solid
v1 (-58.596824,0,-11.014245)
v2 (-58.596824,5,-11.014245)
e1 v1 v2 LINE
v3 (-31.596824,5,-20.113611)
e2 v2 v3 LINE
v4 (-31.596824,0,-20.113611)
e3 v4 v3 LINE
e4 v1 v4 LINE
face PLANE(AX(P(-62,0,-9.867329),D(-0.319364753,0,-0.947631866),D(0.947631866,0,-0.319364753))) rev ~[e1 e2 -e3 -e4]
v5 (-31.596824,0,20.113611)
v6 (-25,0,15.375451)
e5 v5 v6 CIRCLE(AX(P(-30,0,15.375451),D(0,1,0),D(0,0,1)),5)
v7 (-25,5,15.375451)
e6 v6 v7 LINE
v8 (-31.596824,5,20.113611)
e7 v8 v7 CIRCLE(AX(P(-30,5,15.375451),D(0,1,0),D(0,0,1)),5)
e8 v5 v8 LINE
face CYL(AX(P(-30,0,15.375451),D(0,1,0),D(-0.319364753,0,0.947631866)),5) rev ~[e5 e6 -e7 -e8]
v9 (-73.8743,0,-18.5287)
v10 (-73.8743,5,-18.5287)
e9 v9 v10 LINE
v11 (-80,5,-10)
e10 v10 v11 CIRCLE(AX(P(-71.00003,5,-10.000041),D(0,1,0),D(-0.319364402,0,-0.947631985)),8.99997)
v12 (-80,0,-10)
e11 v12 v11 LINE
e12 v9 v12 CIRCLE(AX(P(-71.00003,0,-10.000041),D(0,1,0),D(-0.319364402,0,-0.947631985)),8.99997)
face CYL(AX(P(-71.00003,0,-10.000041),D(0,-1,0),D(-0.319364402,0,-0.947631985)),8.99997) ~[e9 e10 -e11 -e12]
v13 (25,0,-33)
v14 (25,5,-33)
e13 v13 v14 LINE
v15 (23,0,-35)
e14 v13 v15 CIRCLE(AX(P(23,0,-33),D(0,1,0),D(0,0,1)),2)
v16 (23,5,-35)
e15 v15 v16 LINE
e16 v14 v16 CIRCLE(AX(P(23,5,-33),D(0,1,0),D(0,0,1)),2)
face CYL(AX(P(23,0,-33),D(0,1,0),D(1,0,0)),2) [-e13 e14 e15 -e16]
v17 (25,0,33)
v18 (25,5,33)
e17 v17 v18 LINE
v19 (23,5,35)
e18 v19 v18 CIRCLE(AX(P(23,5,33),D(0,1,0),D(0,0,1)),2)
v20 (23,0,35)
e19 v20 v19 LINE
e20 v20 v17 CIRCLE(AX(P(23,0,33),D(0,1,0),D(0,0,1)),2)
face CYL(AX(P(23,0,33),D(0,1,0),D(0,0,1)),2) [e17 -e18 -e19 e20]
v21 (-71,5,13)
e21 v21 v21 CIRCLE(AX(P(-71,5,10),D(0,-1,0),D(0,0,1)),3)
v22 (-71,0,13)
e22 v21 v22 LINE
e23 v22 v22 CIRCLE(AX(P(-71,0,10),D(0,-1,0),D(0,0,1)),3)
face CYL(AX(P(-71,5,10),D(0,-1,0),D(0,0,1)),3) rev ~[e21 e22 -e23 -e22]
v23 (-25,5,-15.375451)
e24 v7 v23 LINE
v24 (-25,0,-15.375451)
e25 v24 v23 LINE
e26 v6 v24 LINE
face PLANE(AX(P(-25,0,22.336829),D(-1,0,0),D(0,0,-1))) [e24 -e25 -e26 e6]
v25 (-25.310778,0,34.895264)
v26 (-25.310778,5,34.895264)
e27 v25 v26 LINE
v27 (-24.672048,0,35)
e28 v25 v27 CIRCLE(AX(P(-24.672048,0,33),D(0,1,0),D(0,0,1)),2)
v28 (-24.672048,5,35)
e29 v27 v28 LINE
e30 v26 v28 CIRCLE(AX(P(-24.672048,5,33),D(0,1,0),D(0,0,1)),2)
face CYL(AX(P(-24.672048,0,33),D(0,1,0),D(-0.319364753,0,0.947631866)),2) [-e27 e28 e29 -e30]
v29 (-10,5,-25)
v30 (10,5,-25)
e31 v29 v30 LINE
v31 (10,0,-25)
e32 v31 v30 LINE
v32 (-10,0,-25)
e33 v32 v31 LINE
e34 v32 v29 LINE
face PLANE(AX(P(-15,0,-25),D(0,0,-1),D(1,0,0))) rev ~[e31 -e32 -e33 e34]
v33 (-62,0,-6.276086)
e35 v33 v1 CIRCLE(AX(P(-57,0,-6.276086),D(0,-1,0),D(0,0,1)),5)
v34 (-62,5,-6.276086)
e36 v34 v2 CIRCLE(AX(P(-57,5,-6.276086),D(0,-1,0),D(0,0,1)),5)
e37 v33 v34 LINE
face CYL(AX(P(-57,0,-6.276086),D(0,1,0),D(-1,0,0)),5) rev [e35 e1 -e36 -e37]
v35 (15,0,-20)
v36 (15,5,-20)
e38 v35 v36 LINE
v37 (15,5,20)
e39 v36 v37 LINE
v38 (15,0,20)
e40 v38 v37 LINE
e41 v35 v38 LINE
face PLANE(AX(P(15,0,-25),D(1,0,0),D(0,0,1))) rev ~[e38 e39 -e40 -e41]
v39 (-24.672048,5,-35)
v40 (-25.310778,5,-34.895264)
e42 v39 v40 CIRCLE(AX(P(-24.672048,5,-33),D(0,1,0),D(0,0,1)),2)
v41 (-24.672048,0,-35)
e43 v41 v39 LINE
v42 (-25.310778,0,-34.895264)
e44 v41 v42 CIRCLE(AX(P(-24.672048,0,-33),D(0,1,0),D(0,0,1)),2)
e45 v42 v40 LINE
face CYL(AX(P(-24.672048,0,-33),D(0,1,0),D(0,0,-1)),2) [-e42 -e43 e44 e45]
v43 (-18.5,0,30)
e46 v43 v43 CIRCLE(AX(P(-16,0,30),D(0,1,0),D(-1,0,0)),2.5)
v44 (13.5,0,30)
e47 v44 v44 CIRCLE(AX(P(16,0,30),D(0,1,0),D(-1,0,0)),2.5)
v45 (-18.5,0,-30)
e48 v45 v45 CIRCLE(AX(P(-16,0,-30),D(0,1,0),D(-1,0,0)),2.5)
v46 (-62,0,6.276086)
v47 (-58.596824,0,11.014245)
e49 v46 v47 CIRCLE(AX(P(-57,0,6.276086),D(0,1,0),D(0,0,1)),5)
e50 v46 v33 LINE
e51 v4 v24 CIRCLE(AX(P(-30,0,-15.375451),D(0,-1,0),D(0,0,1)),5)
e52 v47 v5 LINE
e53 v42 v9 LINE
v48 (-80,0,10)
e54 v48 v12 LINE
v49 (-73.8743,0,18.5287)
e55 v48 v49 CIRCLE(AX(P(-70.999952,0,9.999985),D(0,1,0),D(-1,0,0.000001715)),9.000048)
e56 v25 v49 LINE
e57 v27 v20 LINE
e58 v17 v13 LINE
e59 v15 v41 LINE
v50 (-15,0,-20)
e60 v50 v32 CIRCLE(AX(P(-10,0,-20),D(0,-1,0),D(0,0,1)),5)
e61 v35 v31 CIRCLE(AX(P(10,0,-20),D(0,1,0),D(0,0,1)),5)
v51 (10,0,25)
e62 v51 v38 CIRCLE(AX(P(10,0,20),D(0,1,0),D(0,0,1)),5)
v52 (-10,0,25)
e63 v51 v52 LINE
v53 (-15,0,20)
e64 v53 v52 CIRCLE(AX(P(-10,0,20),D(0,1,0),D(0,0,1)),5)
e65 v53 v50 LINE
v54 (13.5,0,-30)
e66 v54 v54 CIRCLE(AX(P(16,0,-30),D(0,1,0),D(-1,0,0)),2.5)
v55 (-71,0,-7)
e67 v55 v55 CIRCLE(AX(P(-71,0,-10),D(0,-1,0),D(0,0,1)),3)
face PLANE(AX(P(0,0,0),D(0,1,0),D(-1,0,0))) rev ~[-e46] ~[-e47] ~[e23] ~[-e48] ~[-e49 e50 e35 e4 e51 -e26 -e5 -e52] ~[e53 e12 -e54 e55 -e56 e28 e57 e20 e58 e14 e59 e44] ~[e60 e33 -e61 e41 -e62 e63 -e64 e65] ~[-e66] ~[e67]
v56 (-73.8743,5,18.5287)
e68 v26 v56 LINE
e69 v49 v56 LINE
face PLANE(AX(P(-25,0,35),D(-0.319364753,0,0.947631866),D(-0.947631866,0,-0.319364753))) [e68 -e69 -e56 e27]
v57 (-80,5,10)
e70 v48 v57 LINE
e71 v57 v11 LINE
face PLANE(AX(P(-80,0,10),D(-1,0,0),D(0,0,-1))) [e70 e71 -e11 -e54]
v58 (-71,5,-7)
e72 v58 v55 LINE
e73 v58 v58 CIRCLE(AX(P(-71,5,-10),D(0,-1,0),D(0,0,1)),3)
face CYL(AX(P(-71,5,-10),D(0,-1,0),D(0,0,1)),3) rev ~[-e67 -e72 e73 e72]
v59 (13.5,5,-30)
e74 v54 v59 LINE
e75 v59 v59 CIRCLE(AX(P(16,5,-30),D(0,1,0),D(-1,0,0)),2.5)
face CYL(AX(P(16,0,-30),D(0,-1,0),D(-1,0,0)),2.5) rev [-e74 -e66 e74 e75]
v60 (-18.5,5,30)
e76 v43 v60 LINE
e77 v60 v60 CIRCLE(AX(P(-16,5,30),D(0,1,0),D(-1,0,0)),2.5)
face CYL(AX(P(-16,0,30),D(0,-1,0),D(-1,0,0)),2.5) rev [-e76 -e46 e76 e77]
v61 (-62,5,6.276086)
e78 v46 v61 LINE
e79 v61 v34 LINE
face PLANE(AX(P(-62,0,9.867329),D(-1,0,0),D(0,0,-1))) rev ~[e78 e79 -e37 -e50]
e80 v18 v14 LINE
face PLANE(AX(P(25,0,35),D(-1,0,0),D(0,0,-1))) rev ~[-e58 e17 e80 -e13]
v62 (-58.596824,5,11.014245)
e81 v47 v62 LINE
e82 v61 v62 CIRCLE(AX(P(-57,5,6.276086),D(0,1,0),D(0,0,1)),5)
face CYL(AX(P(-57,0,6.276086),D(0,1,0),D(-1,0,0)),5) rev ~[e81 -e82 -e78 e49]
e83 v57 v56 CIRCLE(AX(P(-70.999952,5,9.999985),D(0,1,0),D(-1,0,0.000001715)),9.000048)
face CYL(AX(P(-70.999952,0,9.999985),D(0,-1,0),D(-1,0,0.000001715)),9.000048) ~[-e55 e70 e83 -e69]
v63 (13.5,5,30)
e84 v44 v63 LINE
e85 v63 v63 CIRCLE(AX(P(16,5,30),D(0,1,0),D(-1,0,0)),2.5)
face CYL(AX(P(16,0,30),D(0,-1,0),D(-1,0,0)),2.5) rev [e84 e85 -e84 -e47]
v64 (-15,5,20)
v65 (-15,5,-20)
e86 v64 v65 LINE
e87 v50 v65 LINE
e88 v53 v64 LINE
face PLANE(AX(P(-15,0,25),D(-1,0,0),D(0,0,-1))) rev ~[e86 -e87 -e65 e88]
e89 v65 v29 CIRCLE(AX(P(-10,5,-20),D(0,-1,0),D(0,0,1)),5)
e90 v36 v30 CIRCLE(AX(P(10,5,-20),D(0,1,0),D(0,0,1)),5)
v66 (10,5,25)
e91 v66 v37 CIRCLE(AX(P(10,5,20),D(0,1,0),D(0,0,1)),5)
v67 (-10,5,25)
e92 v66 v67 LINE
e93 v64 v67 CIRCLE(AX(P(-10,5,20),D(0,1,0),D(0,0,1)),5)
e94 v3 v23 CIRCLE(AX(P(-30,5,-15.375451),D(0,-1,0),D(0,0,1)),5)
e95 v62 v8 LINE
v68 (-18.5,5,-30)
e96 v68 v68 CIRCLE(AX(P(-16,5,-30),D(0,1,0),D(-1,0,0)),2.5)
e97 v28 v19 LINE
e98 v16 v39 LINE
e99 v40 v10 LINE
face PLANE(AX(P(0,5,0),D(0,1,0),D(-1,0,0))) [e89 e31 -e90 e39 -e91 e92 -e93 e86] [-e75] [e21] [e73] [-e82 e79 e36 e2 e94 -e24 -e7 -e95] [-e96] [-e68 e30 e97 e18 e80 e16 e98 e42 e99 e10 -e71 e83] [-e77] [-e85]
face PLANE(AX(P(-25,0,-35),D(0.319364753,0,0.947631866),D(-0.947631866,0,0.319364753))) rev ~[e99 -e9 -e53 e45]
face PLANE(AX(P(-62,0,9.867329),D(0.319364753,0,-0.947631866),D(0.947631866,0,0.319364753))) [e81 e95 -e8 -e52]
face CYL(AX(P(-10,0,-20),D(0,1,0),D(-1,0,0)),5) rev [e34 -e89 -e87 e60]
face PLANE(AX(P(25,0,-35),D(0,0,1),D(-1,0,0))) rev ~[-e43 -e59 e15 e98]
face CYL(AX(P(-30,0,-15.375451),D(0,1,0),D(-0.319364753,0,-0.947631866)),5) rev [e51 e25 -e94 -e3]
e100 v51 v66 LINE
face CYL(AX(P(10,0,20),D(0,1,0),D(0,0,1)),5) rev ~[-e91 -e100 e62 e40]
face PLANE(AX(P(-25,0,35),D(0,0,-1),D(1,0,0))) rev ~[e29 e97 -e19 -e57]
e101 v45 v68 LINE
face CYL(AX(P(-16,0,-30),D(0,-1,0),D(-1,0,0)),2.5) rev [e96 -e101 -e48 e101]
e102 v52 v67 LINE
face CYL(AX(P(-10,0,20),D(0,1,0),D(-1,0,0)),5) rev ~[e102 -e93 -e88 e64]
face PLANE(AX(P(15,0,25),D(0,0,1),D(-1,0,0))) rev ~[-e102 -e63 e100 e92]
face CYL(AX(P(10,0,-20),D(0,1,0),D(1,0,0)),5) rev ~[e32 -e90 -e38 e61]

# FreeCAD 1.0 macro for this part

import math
import FreeCAD as App
import Part
import Sketcher


def edges_at(feature, points):
    """Names of the edges that pass closest to the given points."""
    edges = feature.Shape.Edges
    near = lambda p: min(range(len(edges)), key=lambda i: edges[i].distToShape(Part.Vertex(*p))[0])
    return sorted({f"Edge{near(p) + 1}" for p in points})

doc = App.newDocument("Part")
params = doc.addObject("Spreadsheet::Sheet", "Params")
for row, (alias, value) in enumerate([
    ("sketch1_diameter", "5 mm"),
    ("sketch1_radius", "9 mm"),
    ("sketch1_height", "70 mm"),
    ("pad1_length", "5 mm"),
    ("fillet_radius", "5 mm"),
    ("fillet2_radius", "2 mm"),
    ("sketch2_diameter", "6 mm"),
    ("hole_diameter", "6 mm"),
], start=1):
    params.set(f"A{row}", alias)
    params.set(f"B{row}", "=" + value)
    params.setAlias(f"B{row}", alias)

body = doc.addObject("PartDesign::Body", "Body")

# Sketch on XZ plane
sketch1 = body.newObject("Sketcher::SketchObject", "Sketch")
sketch1.AttachmentSupport = (doc.getObject("XZ_Plane"), [""])
sketch1.MapMode = "FlatFace"
sketch1.addGeometry(Part.ArcOfCircle(Part.Circle(App.Vector(-71, 10, 0), App.Vector(0, 0, 1), 9), math.radians(108.624589), math.radians(180)), False)
sketch1.addGeometry(Part.LineSegment(App.Vector(-73.8743, 18.5287, 0), App.Vector(-25, 35, 0)), False)
sketch1.addGeometry(Part.LineSegment(App.Vector(-25, 35, 0), App.Vector(25, 35, 0)), False)
sketch1.addGeometry(Part.LineSegment(App.Vector(25, 35, 0), App.Vector(25, -35, 0)), False)
sketch1.addGeometry(Part.LineSegment(App.Vector(25, -35, 0), App.Vector(-25, -35, 0)), False)
sketch1.addGeometry(Part.LineSegment(App.Vector(-25, -35, 0), App.Vector(-73.8743, -18.5287, 0)), False)
sketch1.addGeometry(Part.ArcOfCircle(Part.Circle(App.Vector(-71, -10, 0), App.Vector(0, 0, 1), 9), math.radians(180), math.radians(251.375411)), False)
sketch1.addGeometry(Part.LineSegment(App.Vector(-80, -10, 0), App.Vector(-80, 10, 0)), False)
sketch1.addGeometry(Part.LineSegment(App.Vector(-62, 9.867329, 0), App.Vector(-62, -9.867329, 0)), False)
sketch1.addGeometry(Part.LineSegment(App.Vector(-62, -9.867329, 0), App.Vector(-25, -22.336829, 0)), False)
sketch1.addGeometry(Part.LineSegment(App.Vector(-25, -22.336829, 0), App.Vector(-25, 22.336829, 0)), False)
sketch1.addGeometry(Part.LineSegment(App.Vector(-25, 22.336829, 0), App.Vector(-62, 9.867329, 0)), False)
sketch1.addGeometry(Part.LineSegment(App.Vector(-15, -25, 0), App.Vector(15, -25, 0)), False)
sketch1.addGeometry(Part.LineSegment(App.Vector(15, -25, 0), App.Vector(15, 25, 0)), False)
sketch1.addGeometry(Part.LineSegment(App.Vector(15, 25, 0), App.Vector(-15, 25, 0)), False)
sketch1.addGeometry(Part.LineSegment(App.Vector(-15, 25, 0), App.Vector(-15, -25, 0)), False)
sketch1.addGeometry(Part.Circle(App.Vector(16, 30, 0), App.Vector(0, 0, 1), 2.5), False)
sketch1.addGeometry(Part.Circle(App.Vector(-16, 30, 0), App.Vector(0, 0, 1), 2.5), False)
sketch1.addGeometry(Part.Circle(App.Vector(16, -30, 0), App.Vector(0, 0, 1), 2.5), False)
sketch1.addGeometry(Part.Circle(App.Vector(-16, -30, 0), App.Vector(0, 0, 1), 2.5), False)
sketch1.addConstraint(Sketcher.Constraint("Tangent", 0, 1, 1, 1))
sketch1.addConstraint(Sketcher.Constraint("Coincident", 1, 2, 2, 1))
sketch1.addConstraint(Sketcher.Constraint("Coincident", 2, 2, 3, 1))
sketch1.addConstraint(Sketcher.Constraint("Coincident", 3, 2, 4, 1))
sketch1.addConstraint(Sketcher.Constraint("Coincident", 4, 2, 5, 1))
sketch1.addConstraint(Sketcher.Constraint("Tangent", 5, 2, 6, 2))
sketch1.addConstraint(Sketcher.Constraint("Tangent", 6, 1, 7, 1))
sketch1.addConstraint(Sketcher.Constraint("Tangent", 7, 2, 0, 2))
sketch1.addConstraint(Sketcher.Constraint("Coincident", 8, 2, 9, 1))
sketch1.addConstraint(Sketcher.Constraint("Coincident", 9, 2, 10, 1))
sketch1.addConstraint(Sketcher.Constraint("Coincident", 10, 2, 11, 1))
sketch1.addConstraint(Sketcher.Constraint("Coincident", 11, 2, 8, 1))
sketch1.addConstraint(Sketcher.Constraint("Coincident", 12, 2, 13, 1))
sketch1.addConstraint(Sketcher.Constraint("Coincident", 13, 2, 14, 1))
sketch1.addConstraint(Sketcher.Constraint("Coincident", 14, 2, 15, 1))
sketch1.addConstraint(Sketcher.Constraint("Coincident", 15, 2, 12, 1))
sketch1.addConstraint(Sketcher.Constraint("Horizontal", 2))
sketch1.addConstraint(Sketcher.Constraint("Vertical", 3))
sketch1.addConstraint(Sketcher.Constraint("Horizontal", 4))
sketch1.addConstraint(Sketcher.Constraint("Vertical", 7))
sketch1.addConstraint(Sketcher.Constraint("Vertical", 8))
sketch1.addConstraint(Sketcher.Constraint("Vertical", 10))
sketch1.addConstraint(Sketcher.Constraint("Horizontal", 12))
sketch1.addConstraint(Sketcher.Constraint("Vertical", 13))
sketch1.addConstraint(Sketcher.Constraint("Horizontal", 14))
sketch1.addConstraint(Sketcher.Constraint("Vertical", 15))
sketch1.addConstraint(Sketcher.Constraint("Equal", 0, 6))
sketch1.addConstraint(Sketcher.Constraint("Equal", 16, 17))
sketch1.addConstraint(Sketcher.Constraint("Equal", 17, 18))
sketch1.addConstraint(Sketcher.Constraint("Equal", 18, 19))
sketch1.addConstraint(Sketcher.Constraint("Symmetric", 17, 3, 18, 3, -1, 1))
sketch1.addConstraint(Sketcher.Constraint("Symmetric", 16, 3, 19, 3, -1, 1))
sketch1.addConstraint(Sketcher.Constraint("Symmetric", 1, 2, 3, 2, -1, 1))
sketch1.addConstraint(Sketcher.Constraint("Symmetric", 12, 2, 14, 2, -1, 1))
sketch1.addConstraint(Sketcher.Constraint("Symmetric", 16, 3, 17, 3, -2))
sketch1.addConstraint(Sketcher.Constraint("Symmetric", 0, 1, 5, 2, -1))
sketch1.addConstraint(Sketcher.Constraint("Parallel", 5, 9))
sketch1.addConstraint(Sketcher.Constraint("Parallel", 1, 11))
sketch1.addConstraint(Sketcher.Constraint("Vertical", 4, 2, 9, 2))
sketch1.addConstraint(Sketcher.Constraint("Equal", 4, 13))
sketch1.addConstraint(Sketcher.Constraint("Diameter", 16, 5.0))
sketch1.addConstraint(Sketcher.Constraint("Radius", 0, 9.0))
sketch1.addConstraint(Sketcher.Constraint("DistanceY", 3, 2, 3, 1, 70.0))
sketch1.addConstraint(Sketcher.Constraint("DistanceY", -1, 1, 0, 3, 10.0))
sketch1.addConstraint(Sketcher.Constraint("DistanceX", 1, 2, 17, 3, 9.0))
sketch1.addConstraint(Sketcher.Constraint("DistanceY", 17, 3, 1, 2, 5.0))
sketch1.addConstraint(Sketcher.Constraint("DistanceX", 6, 3, 8, 2, 9.0))
sketch1.addConstraint(Sketcher.Constraint("DistanceY", 18, 3, 12, 2, 5.0))
sketch1.addConstraint(Sketcher.Constraint("DistanceX", 12, 2, 3, 2, 10.0))
sketch1.addConstraint(Sketcher.Constraint("DistanceX", 0, 3, -1, 1, 71.0))
sketch1.addConstraint(Sketcher.Constraint("DistanceY", 8, 2, 8, 1, 19.7347))
sketch1.addConstraint(Sketcher.Constraint("DistanceY", 8, 2, -1, 1, 9.8673))
sketch1.setExpression("Constraints[40]", "Params.sketch1_diameter")
sketch1.setExpression("Constraints[41]", "Params.sketch1_radius")
sketch1.setExpression("Constraints[42]", "Params.sketch1_height")
pad1 = body.newObject("PartDesign::Pad", "Pad")
pad1.Profile = sketch1
pad1.setExpression("Length", "Params.pad1_length")
pad1.Reversed = True
doc.recompute()

fillet = body.newObject("PartDesign::Fillet", "Fillet")
fillet.Base = (pad1, edges_at(pad1, [
    (-15, 2.5, -25),
    (-15, 2.5, 25),
    (15, 2.5, 25),
    (15, 2.5, -25),
    (-25, 2.5, -22.337),
    (-25, 2.5, 22.337),
    (-62, 2.5, -9.867),
    (-62, 2.5, 9.867),
]))
fillet.setExpression("Radius", "Params.fillet_radius")
doc.recompute()

fillet2 = body.newObject("PartDesign::Fillet", "Fillet001")
fillet2.Base = (fillet, edges_at(fillet, [
    (25, 2.5, -35),
    (25, 2.5, 35),
    (-25, 2.5, -35),
    (-25, 2.5, 35),
]))
fillet2.setExpression("Radius", "Params.fillet2_radius")

# Sketch on XZ plane
sketch2 = body.newObject("Sketcher::SketchObject", "Sketch001")
sketch2.AttachmentSupport = (doc.getObject("XZ_Plane"), [""])
sketch2.MapMode = "FlatFace"
sketch2.AttachmentOffset = App.Placement(App.Vector(0, 0, -5), App.Rotation())
sketch2.addGeometry(Part.Circle(App.Vector(-71, 10, 0), App.Vector(0, 0, 1), 3), False)
sketch2.addGeometry(Part.Circle(App.Vector(-71, -10, 0), App.Vector(0, 0, 1), 3), False)
sketch2.addConstraint(Sketcher.Constraint("Equal", 0, 1))
sketch2.addConstraint(Sketcher.Constraint("Symmetric", 0, 3, 1, 3, -1))
sketch2.addConstraint(Sketcher.Constraint("Diameter", 0, 6.0))
sketch2.addConstraint(Sketcher.Constraint("DistanceX", 0, 3, -1, 1, 71.0))
sketch2.addConstraint(Sketcher.Constraint("DistanceY", -1, 1, 0, 3, 10.0))
sketch2.setExpression("Constraints[2]", "Params.sketch2_diameter")
doc.recompute()
hole = body.newObject("PartDesign::Hole", "Hole")
hole.Profile = sketch2
hole.ThreadType = "None"
hole.setExpression("Diameter", "Params.hole_diameter")
hole.DepthType = "ThroughAll"
hole.Reversed = True

doc.recompute()
